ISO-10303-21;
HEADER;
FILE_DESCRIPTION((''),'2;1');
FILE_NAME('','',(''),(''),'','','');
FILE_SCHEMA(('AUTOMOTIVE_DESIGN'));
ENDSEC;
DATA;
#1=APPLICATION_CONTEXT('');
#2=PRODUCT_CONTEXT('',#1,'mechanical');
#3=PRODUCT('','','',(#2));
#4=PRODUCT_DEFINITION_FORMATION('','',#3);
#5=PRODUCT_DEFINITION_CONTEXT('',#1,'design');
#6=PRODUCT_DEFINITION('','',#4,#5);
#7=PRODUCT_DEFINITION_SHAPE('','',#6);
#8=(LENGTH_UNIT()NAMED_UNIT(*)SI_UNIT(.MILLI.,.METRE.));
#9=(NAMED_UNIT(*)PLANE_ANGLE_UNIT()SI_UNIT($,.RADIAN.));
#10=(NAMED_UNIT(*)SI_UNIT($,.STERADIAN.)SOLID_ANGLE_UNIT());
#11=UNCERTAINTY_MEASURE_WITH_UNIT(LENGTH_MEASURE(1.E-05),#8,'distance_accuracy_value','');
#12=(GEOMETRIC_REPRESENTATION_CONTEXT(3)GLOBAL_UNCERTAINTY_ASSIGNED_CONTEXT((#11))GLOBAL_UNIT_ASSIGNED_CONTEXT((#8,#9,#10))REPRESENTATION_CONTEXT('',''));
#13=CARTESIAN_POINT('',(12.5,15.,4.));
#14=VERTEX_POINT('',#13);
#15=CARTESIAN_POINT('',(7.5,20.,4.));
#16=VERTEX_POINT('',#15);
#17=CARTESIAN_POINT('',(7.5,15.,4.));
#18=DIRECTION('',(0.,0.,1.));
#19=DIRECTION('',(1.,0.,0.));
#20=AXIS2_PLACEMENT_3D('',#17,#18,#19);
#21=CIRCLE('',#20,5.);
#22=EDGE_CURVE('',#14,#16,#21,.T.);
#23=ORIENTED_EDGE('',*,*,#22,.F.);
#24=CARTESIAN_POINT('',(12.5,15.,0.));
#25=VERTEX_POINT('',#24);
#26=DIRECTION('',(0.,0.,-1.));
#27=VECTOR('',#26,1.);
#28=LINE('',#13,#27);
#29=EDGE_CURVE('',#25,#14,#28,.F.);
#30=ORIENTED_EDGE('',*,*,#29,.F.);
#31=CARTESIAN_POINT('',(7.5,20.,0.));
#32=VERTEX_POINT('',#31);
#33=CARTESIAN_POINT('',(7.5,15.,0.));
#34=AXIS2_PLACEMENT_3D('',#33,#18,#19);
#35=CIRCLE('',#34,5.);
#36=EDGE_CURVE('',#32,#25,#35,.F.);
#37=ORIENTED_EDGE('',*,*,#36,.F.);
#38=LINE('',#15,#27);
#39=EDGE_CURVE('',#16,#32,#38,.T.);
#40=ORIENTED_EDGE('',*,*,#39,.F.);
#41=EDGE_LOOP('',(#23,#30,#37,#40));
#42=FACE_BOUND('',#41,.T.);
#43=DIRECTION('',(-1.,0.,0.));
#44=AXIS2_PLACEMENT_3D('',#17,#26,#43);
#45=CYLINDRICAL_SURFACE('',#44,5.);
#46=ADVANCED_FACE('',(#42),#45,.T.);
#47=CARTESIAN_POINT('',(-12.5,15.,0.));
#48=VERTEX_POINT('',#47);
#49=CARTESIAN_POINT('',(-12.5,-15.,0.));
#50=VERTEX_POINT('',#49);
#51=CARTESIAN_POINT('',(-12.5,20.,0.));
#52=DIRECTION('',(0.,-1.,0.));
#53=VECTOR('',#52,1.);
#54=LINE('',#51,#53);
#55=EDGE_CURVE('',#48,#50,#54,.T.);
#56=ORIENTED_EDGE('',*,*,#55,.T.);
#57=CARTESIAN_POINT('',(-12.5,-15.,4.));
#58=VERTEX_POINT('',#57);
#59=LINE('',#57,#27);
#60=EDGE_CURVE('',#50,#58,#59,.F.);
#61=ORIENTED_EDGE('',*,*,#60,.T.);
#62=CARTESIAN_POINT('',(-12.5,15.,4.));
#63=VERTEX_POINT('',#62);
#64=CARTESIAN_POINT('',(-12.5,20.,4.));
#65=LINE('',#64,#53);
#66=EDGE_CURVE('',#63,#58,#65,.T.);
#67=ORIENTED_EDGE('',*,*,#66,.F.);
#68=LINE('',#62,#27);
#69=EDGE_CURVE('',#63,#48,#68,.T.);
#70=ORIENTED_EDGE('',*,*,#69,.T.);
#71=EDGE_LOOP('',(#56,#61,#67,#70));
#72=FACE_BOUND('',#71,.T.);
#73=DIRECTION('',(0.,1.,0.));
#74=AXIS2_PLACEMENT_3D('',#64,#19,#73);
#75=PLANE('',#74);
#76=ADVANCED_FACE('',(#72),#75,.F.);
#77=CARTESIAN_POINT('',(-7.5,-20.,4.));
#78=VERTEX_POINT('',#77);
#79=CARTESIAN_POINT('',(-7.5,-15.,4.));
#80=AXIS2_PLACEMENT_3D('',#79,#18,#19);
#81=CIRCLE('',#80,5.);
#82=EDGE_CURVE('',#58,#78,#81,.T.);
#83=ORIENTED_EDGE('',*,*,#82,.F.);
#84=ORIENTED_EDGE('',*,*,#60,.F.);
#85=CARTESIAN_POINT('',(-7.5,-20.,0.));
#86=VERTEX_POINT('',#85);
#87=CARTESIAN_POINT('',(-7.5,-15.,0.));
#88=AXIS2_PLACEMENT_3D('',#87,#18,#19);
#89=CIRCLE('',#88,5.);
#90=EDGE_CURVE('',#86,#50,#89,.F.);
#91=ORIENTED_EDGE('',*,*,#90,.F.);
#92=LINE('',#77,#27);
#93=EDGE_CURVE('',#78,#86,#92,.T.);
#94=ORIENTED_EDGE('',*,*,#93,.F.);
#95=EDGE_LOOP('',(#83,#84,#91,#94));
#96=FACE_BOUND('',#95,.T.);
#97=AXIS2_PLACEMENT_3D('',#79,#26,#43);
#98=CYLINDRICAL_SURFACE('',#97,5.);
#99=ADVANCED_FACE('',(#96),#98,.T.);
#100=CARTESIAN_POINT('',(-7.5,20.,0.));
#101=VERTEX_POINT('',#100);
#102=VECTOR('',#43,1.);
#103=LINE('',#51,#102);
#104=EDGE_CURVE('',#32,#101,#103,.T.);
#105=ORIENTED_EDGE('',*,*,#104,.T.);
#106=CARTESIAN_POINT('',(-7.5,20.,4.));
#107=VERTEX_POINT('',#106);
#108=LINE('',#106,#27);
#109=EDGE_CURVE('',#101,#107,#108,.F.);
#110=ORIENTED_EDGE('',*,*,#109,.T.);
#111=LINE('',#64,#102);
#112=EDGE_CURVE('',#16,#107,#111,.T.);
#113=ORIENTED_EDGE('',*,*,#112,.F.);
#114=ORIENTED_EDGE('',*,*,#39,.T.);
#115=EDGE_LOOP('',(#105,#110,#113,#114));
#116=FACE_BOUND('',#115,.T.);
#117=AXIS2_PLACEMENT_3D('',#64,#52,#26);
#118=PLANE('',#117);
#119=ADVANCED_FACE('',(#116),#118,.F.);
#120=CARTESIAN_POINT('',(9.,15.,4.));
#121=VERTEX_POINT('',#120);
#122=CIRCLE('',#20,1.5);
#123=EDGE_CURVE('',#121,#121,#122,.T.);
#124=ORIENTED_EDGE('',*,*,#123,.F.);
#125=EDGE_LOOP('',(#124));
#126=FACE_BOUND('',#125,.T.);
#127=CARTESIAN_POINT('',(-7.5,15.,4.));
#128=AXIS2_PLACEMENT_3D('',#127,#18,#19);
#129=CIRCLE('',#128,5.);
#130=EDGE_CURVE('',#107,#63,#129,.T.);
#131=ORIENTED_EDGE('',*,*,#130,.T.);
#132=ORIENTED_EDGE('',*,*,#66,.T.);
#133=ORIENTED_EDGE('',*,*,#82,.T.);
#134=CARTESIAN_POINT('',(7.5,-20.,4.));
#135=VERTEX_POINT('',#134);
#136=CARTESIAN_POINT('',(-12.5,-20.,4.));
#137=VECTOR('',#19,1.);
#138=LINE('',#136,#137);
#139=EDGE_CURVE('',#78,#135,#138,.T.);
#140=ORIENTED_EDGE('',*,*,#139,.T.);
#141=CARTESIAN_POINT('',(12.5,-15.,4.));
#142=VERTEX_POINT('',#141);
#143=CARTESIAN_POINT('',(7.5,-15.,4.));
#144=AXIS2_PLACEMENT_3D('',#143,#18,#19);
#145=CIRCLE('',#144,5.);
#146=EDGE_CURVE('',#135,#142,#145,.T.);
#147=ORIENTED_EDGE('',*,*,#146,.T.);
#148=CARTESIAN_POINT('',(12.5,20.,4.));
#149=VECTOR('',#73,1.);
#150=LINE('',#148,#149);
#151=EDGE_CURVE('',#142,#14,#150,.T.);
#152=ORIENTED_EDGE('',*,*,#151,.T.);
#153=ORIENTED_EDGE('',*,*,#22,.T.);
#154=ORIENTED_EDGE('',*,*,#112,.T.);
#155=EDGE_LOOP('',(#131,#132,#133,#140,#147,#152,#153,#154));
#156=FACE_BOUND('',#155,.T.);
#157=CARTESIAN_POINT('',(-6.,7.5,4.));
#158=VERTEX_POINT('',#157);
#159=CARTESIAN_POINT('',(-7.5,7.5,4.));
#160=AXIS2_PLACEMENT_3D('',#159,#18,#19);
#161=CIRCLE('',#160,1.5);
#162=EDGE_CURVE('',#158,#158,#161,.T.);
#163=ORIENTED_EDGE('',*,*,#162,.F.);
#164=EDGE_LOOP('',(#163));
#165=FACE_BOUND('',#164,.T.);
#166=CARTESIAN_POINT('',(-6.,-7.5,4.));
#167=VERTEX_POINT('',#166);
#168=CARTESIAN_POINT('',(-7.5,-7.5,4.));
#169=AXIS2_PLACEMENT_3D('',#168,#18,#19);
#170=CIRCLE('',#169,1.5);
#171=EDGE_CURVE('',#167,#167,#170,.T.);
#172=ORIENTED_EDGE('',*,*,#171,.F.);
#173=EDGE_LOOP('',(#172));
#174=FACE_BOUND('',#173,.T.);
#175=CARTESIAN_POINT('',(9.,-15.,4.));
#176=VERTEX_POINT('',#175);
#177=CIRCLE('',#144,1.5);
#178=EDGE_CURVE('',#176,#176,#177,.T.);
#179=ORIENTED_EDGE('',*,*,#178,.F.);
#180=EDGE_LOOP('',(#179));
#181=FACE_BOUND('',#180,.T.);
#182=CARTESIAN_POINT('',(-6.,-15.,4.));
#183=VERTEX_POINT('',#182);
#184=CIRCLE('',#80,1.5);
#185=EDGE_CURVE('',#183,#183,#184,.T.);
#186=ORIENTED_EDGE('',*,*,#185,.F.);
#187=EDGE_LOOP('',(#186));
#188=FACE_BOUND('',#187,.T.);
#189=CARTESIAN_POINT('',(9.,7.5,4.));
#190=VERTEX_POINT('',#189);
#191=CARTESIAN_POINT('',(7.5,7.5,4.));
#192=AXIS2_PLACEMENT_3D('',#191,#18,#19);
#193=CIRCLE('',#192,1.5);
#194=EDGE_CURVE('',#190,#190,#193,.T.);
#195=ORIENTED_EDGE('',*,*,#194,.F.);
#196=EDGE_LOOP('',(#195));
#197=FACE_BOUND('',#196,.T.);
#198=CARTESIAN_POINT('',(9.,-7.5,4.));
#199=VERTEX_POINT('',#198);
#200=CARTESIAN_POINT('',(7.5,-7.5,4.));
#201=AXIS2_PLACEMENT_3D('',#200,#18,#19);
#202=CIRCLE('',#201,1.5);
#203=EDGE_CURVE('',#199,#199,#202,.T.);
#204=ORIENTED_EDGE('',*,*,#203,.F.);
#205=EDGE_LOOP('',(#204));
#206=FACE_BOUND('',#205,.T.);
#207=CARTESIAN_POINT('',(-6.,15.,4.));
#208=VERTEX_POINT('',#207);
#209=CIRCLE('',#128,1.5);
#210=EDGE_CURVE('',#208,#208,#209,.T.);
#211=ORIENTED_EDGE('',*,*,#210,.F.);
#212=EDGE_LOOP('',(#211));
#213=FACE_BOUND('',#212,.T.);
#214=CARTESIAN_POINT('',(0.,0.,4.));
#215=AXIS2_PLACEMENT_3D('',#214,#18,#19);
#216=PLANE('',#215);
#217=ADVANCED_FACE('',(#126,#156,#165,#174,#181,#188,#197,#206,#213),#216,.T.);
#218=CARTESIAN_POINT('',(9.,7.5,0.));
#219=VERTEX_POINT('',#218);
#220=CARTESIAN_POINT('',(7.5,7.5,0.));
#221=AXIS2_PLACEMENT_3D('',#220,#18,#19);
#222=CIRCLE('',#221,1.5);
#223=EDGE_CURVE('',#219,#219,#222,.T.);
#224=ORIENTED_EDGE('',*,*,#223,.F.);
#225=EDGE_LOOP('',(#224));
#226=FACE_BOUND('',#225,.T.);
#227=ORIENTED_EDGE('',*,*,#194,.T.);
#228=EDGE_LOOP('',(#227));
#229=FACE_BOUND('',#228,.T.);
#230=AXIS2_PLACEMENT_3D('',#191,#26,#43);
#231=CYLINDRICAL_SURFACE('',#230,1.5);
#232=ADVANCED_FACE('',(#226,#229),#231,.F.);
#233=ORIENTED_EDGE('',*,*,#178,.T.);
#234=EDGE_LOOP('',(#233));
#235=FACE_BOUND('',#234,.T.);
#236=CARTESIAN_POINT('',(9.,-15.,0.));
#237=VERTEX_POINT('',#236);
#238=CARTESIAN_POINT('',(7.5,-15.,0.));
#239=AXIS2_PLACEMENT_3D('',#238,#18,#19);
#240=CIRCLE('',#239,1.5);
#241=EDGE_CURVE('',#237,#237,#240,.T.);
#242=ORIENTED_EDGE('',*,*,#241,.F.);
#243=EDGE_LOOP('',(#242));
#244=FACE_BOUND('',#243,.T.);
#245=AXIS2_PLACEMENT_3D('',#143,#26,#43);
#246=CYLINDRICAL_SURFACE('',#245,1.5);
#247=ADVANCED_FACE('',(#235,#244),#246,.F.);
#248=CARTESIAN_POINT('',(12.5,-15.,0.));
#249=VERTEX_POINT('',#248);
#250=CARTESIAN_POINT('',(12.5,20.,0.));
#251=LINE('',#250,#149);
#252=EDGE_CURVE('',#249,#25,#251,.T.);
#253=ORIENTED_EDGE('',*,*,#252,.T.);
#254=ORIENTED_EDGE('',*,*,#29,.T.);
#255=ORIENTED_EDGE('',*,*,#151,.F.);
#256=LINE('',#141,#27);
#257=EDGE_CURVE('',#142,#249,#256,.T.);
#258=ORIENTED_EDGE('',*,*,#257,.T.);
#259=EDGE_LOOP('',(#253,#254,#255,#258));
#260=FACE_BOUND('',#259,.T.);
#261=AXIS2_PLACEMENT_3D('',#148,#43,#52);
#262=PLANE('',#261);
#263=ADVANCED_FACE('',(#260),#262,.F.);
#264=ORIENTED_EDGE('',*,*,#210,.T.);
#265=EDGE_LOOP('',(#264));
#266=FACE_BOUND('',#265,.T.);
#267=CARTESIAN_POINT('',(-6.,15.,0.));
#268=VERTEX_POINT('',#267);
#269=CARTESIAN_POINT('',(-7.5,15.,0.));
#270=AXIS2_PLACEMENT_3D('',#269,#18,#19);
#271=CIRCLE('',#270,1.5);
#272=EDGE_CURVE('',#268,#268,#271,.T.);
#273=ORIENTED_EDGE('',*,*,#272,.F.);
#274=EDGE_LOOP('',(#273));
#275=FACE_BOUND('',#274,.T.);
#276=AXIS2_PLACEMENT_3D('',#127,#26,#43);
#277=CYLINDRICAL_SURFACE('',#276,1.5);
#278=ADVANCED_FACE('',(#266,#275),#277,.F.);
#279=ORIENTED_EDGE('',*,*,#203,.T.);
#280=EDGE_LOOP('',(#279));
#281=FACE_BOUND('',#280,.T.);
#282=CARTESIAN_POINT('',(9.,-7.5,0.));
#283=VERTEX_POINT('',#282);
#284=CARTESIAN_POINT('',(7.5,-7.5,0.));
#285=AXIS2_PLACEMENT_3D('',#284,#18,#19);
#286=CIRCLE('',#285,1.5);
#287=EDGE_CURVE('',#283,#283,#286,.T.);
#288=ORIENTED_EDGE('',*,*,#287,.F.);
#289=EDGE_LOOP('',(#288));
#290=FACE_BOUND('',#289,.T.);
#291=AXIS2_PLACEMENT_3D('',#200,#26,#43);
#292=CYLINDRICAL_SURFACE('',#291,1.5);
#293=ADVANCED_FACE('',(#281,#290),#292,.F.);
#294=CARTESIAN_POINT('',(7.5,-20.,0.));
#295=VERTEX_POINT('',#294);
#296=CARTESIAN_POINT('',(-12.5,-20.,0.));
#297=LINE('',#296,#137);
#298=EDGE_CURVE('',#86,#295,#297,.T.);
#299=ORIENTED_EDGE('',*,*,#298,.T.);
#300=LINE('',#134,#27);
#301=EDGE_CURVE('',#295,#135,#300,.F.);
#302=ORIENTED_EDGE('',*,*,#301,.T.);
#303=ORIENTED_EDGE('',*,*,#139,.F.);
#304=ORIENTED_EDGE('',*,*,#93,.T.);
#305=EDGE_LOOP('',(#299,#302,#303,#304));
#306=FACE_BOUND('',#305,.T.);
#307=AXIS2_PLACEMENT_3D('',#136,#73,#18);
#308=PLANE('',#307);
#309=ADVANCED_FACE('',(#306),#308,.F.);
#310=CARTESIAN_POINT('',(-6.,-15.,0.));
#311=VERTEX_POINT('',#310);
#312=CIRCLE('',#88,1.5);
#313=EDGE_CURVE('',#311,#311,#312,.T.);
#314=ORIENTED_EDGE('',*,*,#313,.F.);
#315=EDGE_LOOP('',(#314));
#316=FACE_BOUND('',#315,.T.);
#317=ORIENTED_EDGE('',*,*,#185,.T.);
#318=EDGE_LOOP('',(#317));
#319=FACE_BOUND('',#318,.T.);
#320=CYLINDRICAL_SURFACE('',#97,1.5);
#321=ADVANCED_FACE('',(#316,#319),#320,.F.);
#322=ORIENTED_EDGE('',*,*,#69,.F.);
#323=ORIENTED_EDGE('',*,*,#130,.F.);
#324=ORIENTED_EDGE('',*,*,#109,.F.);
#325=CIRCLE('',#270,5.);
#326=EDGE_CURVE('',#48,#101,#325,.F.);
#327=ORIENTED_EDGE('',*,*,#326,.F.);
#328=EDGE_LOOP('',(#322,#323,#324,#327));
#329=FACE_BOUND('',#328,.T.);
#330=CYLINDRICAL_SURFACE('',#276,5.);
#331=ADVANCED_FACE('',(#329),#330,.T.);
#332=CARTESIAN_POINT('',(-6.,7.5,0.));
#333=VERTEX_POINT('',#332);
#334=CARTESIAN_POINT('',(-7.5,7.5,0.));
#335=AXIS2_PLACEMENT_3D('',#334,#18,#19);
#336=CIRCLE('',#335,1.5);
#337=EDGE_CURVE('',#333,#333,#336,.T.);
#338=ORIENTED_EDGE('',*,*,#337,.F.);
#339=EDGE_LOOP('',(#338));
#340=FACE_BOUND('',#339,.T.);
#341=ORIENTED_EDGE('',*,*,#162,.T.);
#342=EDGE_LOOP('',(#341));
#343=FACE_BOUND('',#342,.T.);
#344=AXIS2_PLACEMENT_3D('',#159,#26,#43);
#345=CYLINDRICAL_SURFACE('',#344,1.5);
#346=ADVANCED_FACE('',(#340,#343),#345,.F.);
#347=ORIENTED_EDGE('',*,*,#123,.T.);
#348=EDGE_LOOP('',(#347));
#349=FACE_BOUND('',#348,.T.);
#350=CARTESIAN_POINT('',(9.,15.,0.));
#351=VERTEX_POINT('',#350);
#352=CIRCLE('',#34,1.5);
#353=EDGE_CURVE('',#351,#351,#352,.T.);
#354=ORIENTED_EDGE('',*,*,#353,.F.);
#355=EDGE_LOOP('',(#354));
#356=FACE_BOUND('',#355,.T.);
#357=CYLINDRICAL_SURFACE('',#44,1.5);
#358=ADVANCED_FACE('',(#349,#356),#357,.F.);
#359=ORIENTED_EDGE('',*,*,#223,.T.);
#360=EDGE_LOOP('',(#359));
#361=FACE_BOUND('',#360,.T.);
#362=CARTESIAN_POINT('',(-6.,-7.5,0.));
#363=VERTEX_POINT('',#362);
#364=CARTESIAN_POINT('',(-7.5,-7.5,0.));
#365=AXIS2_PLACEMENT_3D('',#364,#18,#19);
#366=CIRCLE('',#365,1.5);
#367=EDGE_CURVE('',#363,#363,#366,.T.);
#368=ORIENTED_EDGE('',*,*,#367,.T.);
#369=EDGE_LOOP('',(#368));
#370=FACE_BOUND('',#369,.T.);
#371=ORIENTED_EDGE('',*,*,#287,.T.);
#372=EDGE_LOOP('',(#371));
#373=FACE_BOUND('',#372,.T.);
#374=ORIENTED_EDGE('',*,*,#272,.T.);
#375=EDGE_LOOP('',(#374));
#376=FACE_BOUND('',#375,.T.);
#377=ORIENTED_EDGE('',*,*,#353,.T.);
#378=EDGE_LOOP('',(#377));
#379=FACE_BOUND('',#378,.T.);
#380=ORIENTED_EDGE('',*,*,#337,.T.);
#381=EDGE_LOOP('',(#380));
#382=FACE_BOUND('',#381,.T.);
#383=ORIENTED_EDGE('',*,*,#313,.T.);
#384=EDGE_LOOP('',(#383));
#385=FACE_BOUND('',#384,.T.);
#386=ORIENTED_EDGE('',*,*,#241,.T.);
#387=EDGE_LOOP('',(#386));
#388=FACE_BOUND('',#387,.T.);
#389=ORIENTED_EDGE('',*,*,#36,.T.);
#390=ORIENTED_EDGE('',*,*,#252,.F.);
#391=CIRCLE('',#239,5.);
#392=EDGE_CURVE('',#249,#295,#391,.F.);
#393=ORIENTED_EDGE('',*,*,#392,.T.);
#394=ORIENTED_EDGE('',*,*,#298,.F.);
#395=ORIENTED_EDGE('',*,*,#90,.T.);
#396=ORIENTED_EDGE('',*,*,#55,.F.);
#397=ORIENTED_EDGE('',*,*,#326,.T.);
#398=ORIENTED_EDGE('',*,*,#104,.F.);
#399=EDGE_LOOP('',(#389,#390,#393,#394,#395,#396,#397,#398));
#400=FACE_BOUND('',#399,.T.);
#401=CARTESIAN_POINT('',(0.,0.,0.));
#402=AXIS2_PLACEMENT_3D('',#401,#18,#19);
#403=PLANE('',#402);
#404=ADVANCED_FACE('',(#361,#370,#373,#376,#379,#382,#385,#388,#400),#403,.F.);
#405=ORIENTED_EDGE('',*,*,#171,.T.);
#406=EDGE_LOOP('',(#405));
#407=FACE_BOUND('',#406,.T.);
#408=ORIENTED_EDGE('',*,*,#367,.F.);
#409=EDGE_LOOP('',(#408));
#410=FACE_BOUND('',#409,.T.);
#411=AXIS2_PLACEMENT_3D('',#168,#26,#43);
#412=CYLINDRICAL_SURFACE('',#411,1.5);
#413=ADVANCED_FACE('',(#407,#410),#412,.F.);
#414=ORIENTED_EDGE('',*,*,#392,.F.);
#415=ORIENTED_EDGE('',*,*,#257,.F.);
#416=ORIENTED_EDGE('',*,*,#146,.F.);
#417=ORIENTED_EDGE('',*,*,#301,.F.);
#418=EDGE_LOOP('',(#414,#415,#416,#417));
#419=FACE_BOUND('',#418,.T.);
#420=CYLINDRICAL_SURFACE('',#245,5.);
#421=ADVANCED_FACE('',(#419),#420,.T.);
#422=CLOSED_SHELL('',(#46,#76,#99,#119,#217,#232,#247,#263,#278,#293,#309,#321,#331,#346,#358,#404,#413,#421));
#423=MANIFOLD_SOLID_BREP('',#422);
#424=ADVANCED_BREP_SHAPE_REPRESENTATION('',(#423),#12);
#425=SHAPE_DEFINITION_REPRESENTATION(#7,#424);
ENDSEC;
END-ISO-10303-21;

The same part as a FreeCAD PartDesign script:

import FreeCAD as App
import Part
import Sketcher
from FreeCAD import Vector
Q = App.Units.Quantity


def edges_at(feature, points):
    """Names of the edges that pass closest to the given points."""
    edges = feature.Shape.Edges
    near = lambda p: min(range(len(edges)), key=lambda i: edges[i].distToShape(Part.Vertex(*p))[0])
    return sorted({f"Edge{near(p) + 1}" for p in points})

doc = App.newDocument("Part")
body = doc.addObject("PartDesign::Body", "Body")

# Sketch on XY plane
sketch1 = body.newObject("Sketcher::SketchObject", "Sketch")
sketch1.AttachmentSupport = (doc.getObject("XY_Plane"), [""])
sketch1.MapMode = "FlatFace"
sketch1.addGeometry([
    Part.LineSegment(Vector(-12.5, 20, 0), Vector(-12.5, -20, 0)),  # 0
    Part.LineSegment(Vector(-12.5, -20, 0), Vector(12.5, -20, 0)),  # 1
    Part.LineSegment(Vector(12.5, -20, 0), Vector(12.5, 20, 0)),  # 2
    Part.LineSegment(Vector(12.5, 20, 0), Vector(-12.5, 20, 0)),  # 3
    Part.Circle(Vector(-7.5, -15, 0), Vector(0, 0, 1), 1.5),  # 4
    Part.Circle(Vector(-7.5, -7.5, 0), Vector(0, 0, 1), 1.5),  # 5
    Part.Circle(Vector(7.5, -15, 0), Vector(0, 0, 1), 1.5),  # 6
    Part.Circle(Vector(7.5, -7.5, 0), Vector(0, 0, 1), 1.5),  # 7
    Part.Circle(Vector(-7.5, 7.5, 0), Vector(0, 0, 1), 1.5),  # 8
    Part.Circle(Vector(-7.5, 15, 0), Vector(0, 0, 1), 1.5),  # 9
    Part.Circle(Vector(7.5, 7.5, 0), Vector(0, 0, 1), 1.5),  # 10
    Part.Circle(Vector(7.5, 15, 0), Vector(0, 0, 1), 1.5),  # 11
], False)
sketch1.addConstraint([
    Sketcher.Constraint("Coincident", 0, 2, 1, 1),
    Sketcher.Constraint("Coincident", 1, 2, 2, 1),
    Sketcher.Constraint("Coincident", 2, 2, 3, 1),
    Sketcher.Constraint("Coincident", 3, 2, 0, 1),
    Sketcher.Constraint("Vertical", 0),
    Sketcher.Constraint("Horizontal", 1),
    Sketcher.Constraint("Vertical", 2),
    Sketcher.Constraint("Horizontal", 3),
    Sketcher.Constraint("Equal", 4, 5),
    Sketcher.Constraint("Equal", 5, 6),
    Sketcher.Constraint("Equal", 6, 7),
    Sketcher.Constraint("Equal", 7, 8),
    Sketcher.Constraint("Equal", 8, 9),
    Sketcher.Constraint("Equal", 9, 10),
    Sketcher.Constraint("Equal", 10, 11),
    Sketcher.Constraint("Symmetric", 7, 3, 8, 3, -1, 1),
    Sketcher.Constraint("Symmetric", 6, 3, 9, 3, -1, 1),
    Sketcher.Constraint("Symmetric", 5, 3, 10, 3, -1, 1),
    Sketcher.Constraint("Symmetric", 4, 3, 11, 3, -1, 1),
    Sketcher.Constraint("Symmetric", 0, 2, 2, 2, -1, 1),
    Sketcher.Constraint("Symmetric", 4, 3, 6, 3, -2),
    Sketcher.Constraint("Symmetric", 5, 3, 7, 3, -2),
    Sketcher.Constraint("Vertical", 4, 3, 5, 3),
    Sketcher.Constraint("Diameter", 4, Q("3 mm")),
    Sketcher.Constraint("DistanceX", 1, 1, 1, 2, Q("25 mm")),
    Sketcher.Constraint("DistanceY", 0, 2, 0, 1, Q("40 mm")),
    Sketcher.Constraint("DistanceY", 4, 3, -1, 1, Q("15 mm")),
    Sketcher.Constraint("DistanceX", 4, 3, 6, 3, Q("15 mm")),
    Sketcher.Constraint("DistanceY", 5, 3, 8, 3, Q("15 mm")),
])
pad1 = body.newObject("PartDesign::Pad", "Pad")
pad1.Profile = sketch1
pad1.Length = 4
doc.recompute()

fillet = body.newObject("PartDesign::Fillet", "Fillet")
fillet.Base = (pad1, edges_at(pad1, [
    (12.5, -20, 2),
    (-12.5, -20, 2),
    (-12.5, 20, 2),
    (12.5, 20, 2),
]))
fillet.Radius = 5

doc.recompute()
